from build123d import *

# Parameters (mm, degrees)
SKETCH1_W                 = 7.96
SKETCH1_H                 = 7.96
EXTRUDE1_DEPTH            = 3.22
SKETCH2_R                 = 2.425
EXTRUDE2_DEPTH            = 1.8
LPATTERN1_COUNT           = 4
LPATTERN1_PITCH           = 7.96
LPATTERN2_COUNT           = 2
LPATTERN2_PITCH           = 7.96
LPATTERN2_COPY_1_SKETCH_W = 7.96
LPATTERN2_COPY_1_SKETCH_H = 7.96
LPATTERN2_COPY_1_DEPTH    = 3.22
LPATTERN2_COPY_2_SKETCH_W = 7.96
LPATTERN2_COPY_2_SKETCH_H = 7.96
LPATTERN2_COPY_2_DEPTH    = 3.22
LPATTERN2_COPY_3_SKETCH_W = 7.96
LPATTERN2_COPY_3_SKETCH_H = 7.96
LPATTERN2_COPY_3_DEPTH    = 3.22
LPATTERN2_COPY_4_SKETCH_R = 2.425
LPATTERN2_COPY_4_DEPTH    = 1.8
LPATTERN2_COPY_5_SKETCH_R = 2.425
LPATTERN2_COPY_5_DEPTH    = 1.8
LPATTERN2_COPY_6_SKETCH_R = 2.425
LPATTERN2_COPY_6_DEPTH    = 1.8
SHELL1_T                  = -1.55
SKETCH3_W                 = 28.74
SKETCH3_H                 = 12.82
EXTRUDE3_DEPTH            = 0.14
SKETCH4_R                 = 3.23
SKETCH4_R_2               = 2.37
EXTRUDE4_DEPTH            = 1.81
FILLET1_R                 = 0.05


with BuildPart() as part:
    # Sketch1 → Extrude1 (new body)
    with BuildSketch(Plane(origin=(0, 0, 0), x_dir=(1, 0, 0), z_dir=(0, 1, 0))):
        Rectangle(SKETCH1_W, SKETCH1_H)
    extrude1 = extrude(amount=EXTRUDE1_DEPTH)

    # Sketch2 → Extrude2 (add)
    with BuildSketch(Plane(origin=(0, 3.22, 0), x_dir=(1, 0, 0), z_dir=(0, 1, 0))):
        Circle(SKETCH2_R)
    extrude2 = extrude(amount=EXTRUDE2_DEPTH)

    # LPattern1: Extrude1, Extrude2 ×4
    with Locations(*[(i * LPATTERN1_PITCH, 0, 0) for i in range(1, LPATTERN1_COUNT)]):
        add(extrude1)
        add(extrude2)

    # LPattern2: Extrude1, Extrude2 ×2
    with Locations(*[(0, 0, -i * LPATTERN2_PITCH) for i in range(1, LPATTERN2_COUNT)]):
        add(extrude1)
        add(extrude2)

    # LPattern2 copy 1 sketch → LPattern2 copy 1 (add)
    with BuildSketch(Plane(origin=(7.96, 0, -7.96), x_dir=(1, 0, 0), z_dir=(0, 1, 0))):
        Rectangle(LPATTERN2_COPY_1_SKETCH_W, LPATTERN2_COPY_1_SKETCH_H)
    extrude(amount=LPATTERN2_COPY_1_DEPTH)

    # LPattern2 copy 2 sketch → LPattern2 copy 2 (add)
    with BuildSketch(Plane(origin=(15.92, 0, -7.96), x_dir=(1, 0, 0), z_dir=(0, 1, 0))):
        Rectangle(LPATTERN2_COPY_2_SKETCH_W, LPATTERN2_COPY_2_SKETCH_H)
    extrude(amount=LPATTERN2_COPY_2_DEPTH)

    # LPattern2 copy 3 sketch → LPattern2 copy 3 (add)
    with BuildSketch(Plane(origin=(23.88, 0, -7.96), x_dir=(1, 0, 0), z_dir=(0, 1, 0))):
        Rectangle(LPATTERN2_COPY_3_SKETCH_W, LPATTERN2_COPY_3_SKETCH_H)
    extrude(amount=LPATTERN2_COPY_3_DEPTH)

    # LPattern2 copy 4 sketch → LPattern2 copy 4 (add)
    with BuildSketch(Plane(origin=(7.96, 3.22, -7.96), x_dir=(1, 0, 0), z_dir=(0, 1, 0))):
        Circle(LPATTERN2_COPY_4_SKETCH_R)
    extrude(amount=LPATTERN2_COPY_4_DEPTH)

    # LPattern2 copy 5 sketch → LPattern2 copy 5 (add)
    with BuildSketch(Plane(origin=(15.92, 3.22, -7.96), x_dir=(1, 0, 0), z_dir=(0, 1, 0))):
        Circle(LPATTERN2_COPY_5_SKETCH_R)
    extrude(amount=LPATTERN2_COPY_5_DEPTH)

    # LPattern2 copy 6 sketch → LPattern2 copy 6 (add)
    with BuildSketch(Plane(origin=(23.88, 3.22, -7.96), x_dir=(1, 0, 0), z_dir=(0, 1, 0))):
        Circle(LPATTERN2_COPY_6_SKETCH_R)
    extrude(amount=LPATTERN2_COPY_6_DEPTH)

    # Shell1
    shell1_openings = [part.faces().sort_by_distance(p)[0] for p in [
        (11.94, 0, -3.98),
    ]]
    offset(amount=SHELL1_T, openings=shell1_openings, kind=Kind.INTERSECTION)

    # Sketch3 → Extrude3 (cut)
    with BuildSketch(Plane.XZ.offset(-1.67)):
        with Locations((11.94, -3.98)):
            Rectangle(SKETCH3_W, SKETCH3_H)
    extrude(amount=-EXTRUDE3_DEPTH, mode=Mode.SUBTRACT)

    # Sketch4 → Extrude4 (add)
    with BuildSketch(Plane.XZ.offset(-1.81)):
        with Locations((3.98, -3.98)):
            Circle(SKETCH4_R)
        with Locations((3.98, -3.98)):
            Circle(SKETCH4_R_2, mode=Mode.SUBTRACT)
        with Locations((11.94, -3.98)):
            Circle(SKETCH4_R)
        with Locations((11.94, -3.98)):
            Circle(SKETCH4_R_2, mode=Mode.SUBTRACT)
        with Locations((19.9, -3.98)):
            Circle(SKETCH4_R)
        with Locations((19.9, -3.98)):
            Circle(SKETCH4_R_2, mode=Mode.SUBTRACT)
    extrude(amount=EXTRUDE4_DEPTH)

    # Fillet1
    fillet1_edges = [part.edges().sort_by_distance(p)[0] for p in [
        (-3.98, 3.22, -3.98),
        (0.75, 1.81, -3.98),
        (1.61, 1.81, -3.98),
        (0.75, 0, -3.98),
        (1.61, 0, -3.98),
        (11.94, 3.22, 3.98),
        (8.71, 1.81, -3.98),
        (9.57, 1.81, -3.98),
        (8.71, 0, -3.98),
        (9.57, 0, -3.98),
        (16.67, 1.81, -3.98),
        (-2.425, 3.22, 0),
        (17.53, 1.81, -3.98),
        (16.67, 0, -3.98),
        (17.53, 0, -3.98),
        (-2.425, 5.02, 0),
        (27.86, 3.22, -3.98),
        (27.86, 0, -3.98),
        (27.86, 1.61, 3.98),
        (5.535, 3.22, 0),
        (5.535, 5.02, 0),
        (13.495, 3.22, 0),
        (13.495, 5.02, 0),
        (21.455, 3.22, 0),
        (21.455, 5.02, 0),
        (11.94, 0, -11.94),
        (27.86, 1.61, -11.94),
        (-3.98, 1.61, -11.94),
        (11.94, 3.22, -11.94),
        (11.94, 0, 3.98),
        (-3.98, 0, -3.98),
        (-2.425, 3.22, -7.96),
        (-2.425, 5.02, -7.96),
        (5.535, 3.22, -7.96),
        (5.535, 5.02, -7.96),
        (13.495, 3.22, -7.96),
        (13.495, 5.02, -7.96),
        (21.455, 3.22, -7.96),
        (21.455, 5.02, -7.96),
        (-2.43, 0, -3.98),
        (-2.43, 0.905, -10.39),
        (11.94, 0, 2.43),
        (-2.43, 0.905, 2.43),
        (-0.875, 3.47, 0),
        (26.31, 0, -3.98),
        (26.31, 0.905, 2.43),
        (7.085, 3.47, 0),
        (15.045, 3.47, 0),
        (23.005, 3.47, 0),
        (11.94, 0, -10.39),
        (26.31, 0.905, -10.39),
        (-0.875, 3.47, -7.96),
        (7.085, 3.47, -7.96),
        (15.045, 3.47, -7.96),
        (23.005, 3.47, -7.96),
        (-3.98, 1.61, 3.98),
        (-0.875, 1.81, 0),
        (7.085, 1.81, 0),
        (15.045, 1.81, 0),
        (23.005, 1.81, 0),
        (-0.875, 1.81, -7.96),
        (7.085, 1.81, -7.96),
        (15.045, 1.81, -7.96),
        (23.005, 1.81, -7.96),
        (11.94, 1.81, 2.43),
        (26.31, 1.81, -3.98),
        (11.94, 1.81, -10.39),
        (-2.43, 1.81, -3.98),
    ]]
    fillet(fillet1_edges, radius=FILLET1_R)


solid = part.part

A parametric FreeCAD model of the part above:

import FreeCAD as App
import Part
import Sketcher


def faces_at(feature, points):
    """Names of the faces that lie closest to the given points."""
    faces = feature.Shape.Faces
    near = lambda p: min(range(len(faces)), key=lambda i: faces[i].distToShape(Part.Vertex(*p))[0])
    return sorted({f"Face{near(p) + 1}" for p in points})

doc = App.newDocument("Part")
body = doc.addObject("PartDesign::Body", "Body")

# Sketch on XZ plane
sketch1 = body.newObject("Sketcher::SketchObject", "Sketch")
sketch1.AttachmentSupport = (doc.getObject("XZ_Plane"), [""])
sketch1.MapMode = "FlatFace"
sketch1.addGeometry([
    Part.LineSegment(App.Vector(-4, -4, 0), App.Vector(-4, 4, 0)),
    Part.LineSegment(App.Vector(-4, 4, 0), App.Vector(4, 4, 0)),
    Part.LineSegment(App.Vector(4, 4, 0), App.Vector(4, -4, 0)),
    Part.LineSegment(App.Vector(4, -4, 0), App.Vector(-4, -4, 0)),
], False)
sketch1.addConstraint([
    Sketcher.Constraint("Coincident", 0, 2, 1, 1),
    Sketcher.Constraint("Coincident", 1, 2, 2, 1),
    Sketcher.Constraint("Coincident", 2, 2, 3, 1),
    Sketcher.Constraint("Coincident", 3, 2, 0, 1),
    Sketcher.Constraint("Vertical", 0),
    Sketcher.Constraint("Horizontal", 1),
    Sketcher.Constraint("Vertical", 2),
    Sketcher.Constraint("Horizontal", 3),
    Sketcher.Constraint("Symmetric", 0, 2, 2, 2, -1, 1),
    Sketcher.Constraint("Equal", 3, 0),
    Sketcher.Constraint("DistanceX", 1, 1, 1, 2, 7.96),
])
pad1 = body.newObject("PartDesign::Pad", "Pad")
pad1.Profile = sketch1
pad1.Length = 3.22
pad1.Reversed = True

# Sketch on XZ plane
sketch2 = body.newObject("Sketcher::SketchObject", "Sketch001")
sketch2.AttachmentSupport = (doc.getObject("XZ_Plane"), [""])
sketch2.MapMode = "FlatFace"
sketch2.AttachmentOffset = App.Placement(App.Vector(0, 0, -3.22), App.Rotation())
sketch2.addGeometry(Part.Circle(App.Vector(0, 0, 0), App.Vector(0, 0, 1), 2.4), False)
sketch2.addConstraint([
    Sketcher.Constraint("Coincident", 0, 3, -1, 1),
    Sketcher.Constraint("Diameter", 0, 4.85),
])
pad2 = body.newObject("PartDesign::Pad", "Pad001")
pad2.Profile = sketch2
pad2.Length = 1.8
pad2.Reversed = True
doc.recompute()

linearpattern = body.newObject("PartDesign::LinearPattern", "LinearPattern")
linearpattern.Originals = [pad1, pad2]
linearpattern.Direction = (doc.getObject("X_Axis"), [""])
linearpattern.Mode = "offset"
linearpattern.Offset = 7.96
linearpattern.Occurrences = 4
body.Tip = linearpattern
doc.recompute()

linearpattern2 = body.newObject("PartDesign::LinearPattern", "LinearPattern001")
linearpattern2.Originals = [pad1, pad2]
linearpattern2.Direction = (doc.getObject("Z_Axis"), [""])
linearpattern2.Mode = "offset"
linearpattern2.Offset = 7.96
linearpattern2.Occurrences = 2
linearpattern2.Reversed = True
body.Tip = linearpattern2

# Sketch on XZ plane
sketch3 = body.newObject("Sketcher::SketchObject", "Sketch002")
sketch3.AttachmentSupport = (doc.getObject("XZ_Plane"), [""])
sketch3.MapMode = "FlatFace"
sketch3.addGeometry([
    Part.LineSegment(App.Vector(4, -12, 0), App.Vector(4, -4, 0)),
    Part.LineSegment(App.Vector(4, -4, 0), App.Vector(12, -4, 0)),
    Part.LineSegment(App.Vector(12, -4, 0), App.Vector(12, -12, 0)),
    Part.LineSegment(App.Vector(12, -12, 0), App.Vector(4, -12, 0)),
], False)
sketch3.addConstraint([
    Sketcher.Constraint("Coincident", 0, 2, 1, 1),
    Sketcher.Constraint("Coincident", 1, 2, 2, 1),
    Sketcher.Constraint("Coincident", 2, 2, 3, 1),
    Sketcher.Constraint("Coincident", 3, 2, 0, 1),
    Sketcher.Constraint("Vertical", 0),
    Sketcher.Constraint("Horizontal", 1),
    Sketcher.Constraint("Vertical", 2),
    Sketcher.Constraint("Horizontal", 3),
    Sketcher.Constraint("Equal", 3, 0),
    Sketcher.Constraint("DistanceX", 1, 1, 1, 2, 7.96),
    Sketcher.Constraint("DistanceX", -1, 1, 0, 2, 3.98),
    Sketcher.Constraint("DistanceY", 0, 2, -1, 1, 3.98),
])
pad3 = body.newObject("PartDesign::Pad", "Pad002")
pad3.Profile = sketch3
pad3.Length = 3.22
pad3.Reversed = True

# Sketch on XZ plane
sketch4 = body.newObject("Sketcher::SketchObject", "Sketch003")
sketch4.AttachmentSupport = (doc.getObject("XZ_Plane"), [""])
sketch4.MapMode = "FlatFace"
sketch4.addGeometry([
    Part.LineSegment(App.Vector(12, -12, 0), App.Vector(12, -4, 0)),
    Part.LineSegment(App.Vector(12, -4, 0), App.Vector(20, -4, 0)),
    Part.LineSegment(App.Vector(20, -4, 0), App.Vector(20, -12, 0)),
    Part.LineSegment(App.Vector(20, -12, 0), App.Vector(12, -12, 0)),
], False)
sketch4.addConstraint([
    Sketcher.Constraint("Coincident", 0, 2, 1, 1),
    Sketcher.Constraint("Coincident", 1, 2, 2, 1),
    Sketcher.Constraint("Coincident", 2, 2, 3, 1),
    Sketcher.Constraint("Coincident", 3, 2, 0, 1),
    Sketcher.Constraint("Vertical", 0),
    Sketcher.Constraint("Horizontal", 1),
    Sketcher.Constraint("Vertical", 2),
    Sketcher.Constraint("Horizontal", 3),
    Sketcher.Constraint("Equal", 3, 0),
    Sketcher.Constraint("DistanceX", 1, 1, 1, 2, 7.96),
    Sketcher.Constraint("DistanceX", -1, 1, 1, 2, 19.9),
    Sketcher.Constraint("DistanceY", 0, 2, -1, 1, 3.98),
])
pad4 = body.newObject("PartDesign::Pad", "Pad003")
pad4.Profile = sketch4
pad4.Length = 3.22
pad4.Reversed = True

# Sketch on XZ plane
sketch5 = body.newObject("Sketcher::SketchObject", "Sketch004")
sketch5.AttachmentSupport = (doc.getObject("XZ_Plane"), [""])
sketch5.MapMode = "FlatFace"
sketch5.addGeometry([
    Part.LineSegment(App.Vector(20, -12, 0), App.Vector(20, -4, 0)),
    Part.LineSegment(App.Vector(20, -4, 0), App.Vector(28, -4, 0)),
    Part.LineSegment(App.Vector(28, -4, 0), App.Vector(28, -12, 0)),
    Part.LineSegment(App.Vector(28, -12, 0), App.Vector(20, -12, 0)),
], False)
sketch5.addConstraint([
    Sketcher.Constraint("Coincident", 0, 2, 1, 1),
    Sketcher.Constraint("Coincident", 1, 2, 2, 1),
    Sketcher.Constraint("Coincident", 2, 2, 3, 1),
    Sketcher.Constraint("Coincident", 3, 2, 0, 1),
    Sketcher.Constraint("Vertical", 0),
    Sketcher.Constraint("Horizontal", 1),
    Sketcher.Constraint("Vertical", 2),
    Sketcher.Constraint("Horizontal", 3),
    Sketcher.Constraint("Equal", 3, 0),
    Sketcher.Constraint("DistanceX", 1, 1, 1, 2, 7.96),
    Sketcher.Constraint("DistanceX", -1, 1, 0, 2, 19.9),
    Sketcher.Constraint("DistanceY", 0, 2, -1, 1, 3.98),
])
pad5 = body.newObject("PartDesign::Pad", "Pad004")
pad5.Profile = sketch5
pad5.Length = 3.22
pad5.Reversed = True

# Sketch on XZ plane
sketch6 = body.newObject("Sketcher::SketchObject", "Sketch005")
sketch6.AttachmentSupport = (doc.getObject("XZ_Plane"), [""])
sketch6.MapMode = "FlatFace"
sketch6.AttachmentOffset = App.Placement(App.Vector(0, 0, -3.22), App.Rotation())
sketch6.addGeometry(Part.Circle(App.Vector(8, -8, 0), App.Vector(0, 0, 1), 2.4), False)
sketch6.addConstraint([
    Sketcher.Constraint("Diameter", 0, 4.85),
    Sketcher.Constraint("DistanceX", -1, 1, 0, 3, 7.96),
    Sketcher.Constraint("DistanceY", 0, 3, -1, 1, 7.96),
])
pad6 = body.newObject("PartDesign::Pad", "Pad005")
pad6.Profile = sketch6
pad6.Length = 1.8
pad6.Reversed = True

# Sketch on XZ plane
sketch7 = body.newObject("Sketcher::SketchObject", "Sketch006")
sketch7.AttachmentSupport = (doc.getObject("XZ_Plane"), [""])
sketch7.MapMode = "FlatFace"
sketch7.AttachmentOffset = App.Placement(App.Vector(0, 0, -3.22), App.Rotation())
sketch7.addGeometry(Part.Circle(App.Vector(15.9, -8, 0), App.Vector(0, 0, 1), 2.4), False)
sketch7.addConstraint([
    Sketcher.Constraint("Diameter", 0, 4.85),
    Sketcher.Constraint("DistanceX", -1, 1, 0, 3, 15.92),
    Sketcher.Constraint("DistanceY", 0, 3, -1, 1, 7.96),
])
pad7 = body.newObject("PartDesign::Pad", "Pad006")
pad7.Profile = sketch7
pad7.Length = 1.8
pad7.Reversed = True

# Sketch on XZ plane
sketch8 = body.newObject("Sketcher::SketchObject", "Sketch007")
sketch8.AttachmentSupport = (doc.getObject("XZ_Plane"), [""])
sketch8.MapMode = "FlatFace"
sketch8.AttachmentOffset = App.Placement(App.Vector(0, 0, -3.22), App.Rotation())
sketch8.addGeometry(Part.Circle(App.Vector(23.9, -8, 0), App.Vector(0, 0, 1), 2.4), False)
sketch8.addConstraint([
    Sketcher.Constraint("Diameter", 0, 4.85),
    Sketcher.Constraint("DistanceX", -1, 1, 0, 3, 23.88),
    Sketcher.Constraint("DistanceY", 0, 3, -1, 1, 7.96),
])
pad8 = body.newObject("PartDesign::Pad", "Pad007")
pad8.Profile = sketch8
pad8.Length = 1.8
pad8.Reversed = True
doc.recompute()

thickness = body.newObject("PartDesign::Thickness", "Thickness")
thickness.Base = (pad8, faces_at(pad8, [(11.94, 0, -3.98)]))
thickness.Value = 1.55
thickness.Reversed = True
thickness.Join = "Intersection"

# Sketch on XZ plane
sketch9 = body.newObject("Sketcher::SketchObject", "Sketch008")
sketch9.AttachmentSupport = (doc.getObject("XZ_Plane"), [""])
sketch9.MapMode = "FlatFace"
sketch9.AttachmentOffset = App.Placement(App.Vector(0, 0, -1.67), App.Rotation())
sketch9.addGeometry([
    Part.LineSegment(App.Vector(-2, 2, 0), App.Vector(-2, -10, 0)),
    Part.LineSegment(App.Vector(-2, -10, 0), App.Vector(26, -10, 0)),
    Part.LineSegment(App.Vector(26, -10, 0), App.Vector(26, 2, 0)),
    Part.LineSegment(App.Vector(26, 2, 0), App.Vector(-2, 2, 0)),
], False)
sketch9.addConstraint([
    Sketcher.Constraint("Coincident", 0, 2, 1, 1),
    Sketcher.Constraint("Coincident", 1, 2, 2, 1),
    Sketcher.Constraint("Coincident", 2, 2, 3, 1),
    Sketcher.Constraint("Coincident", 3, 2, 0, 1),
    Sketcher.Constraint("Vertical", 0),
    Sketcher.Constraint("Horizontal", 1),
    Sketcher.Constraint("Vertical", 2),
    Sketcher.Constraint("Horizontal", 3),
    Sketcher.Constraint("DistanceX", 1, 1, 1, 2, 28.74),
    Sketcher.Constraint("DistanceY", 0, 2, 0, 1, 12.82),
    Sketcher.Constraint("DistanceX", 0, 2, -1, 1, 2.43),
    Sketcher.Constraint("DistanceY", 0, 2, -1, 1, 10.39),
])
pocket1 = body.newObject("PartDesign::Pocket", "Pocket")
pocket1.Profile = sketch9
pocket1.Length = 0.14

# Sketch on XZ plane
sketch10 = body.newObject("Sketcher::SketchObject", "Sketch009")
sketch10.AttachmentSupport = (doc.getObject("XZ_Plane"), [""])
sketch10.MapMode = "FlatFace"
sketch10.AttachmentOffset = App.Placement(App.Vector(0, 0, -1.81), App.Rotation())
sketch10.addGeometry([
    Part.Circle(App.Vector(4, -4, 0), App.Vector(0, 0, 1), 3.2),  # 0
    Part.Circle(App.Vector(4, -4, 0), App.Vector(0, 0, 1), 2.4),  # 1
    Part.Circle(App.Vector(11.9, -4, 0), App.Vector(0, 0, 1), 3.2),  # 2
    Part.Circle(App.Vector(11.9, -4, 0), App.Vector(0, 0, 1), 2.4),  # 3
    Part.Circle(App.Vector(19.9, -4, 0), App.Vector(0, 0, 1), 3.2),  # 4
    Part.Circle(App.Vector(19.9, -4, 0), App.Vector(0, 0, 1), 2.4),  # 5
], False)
sketch10.addConstraint([
    Sketcher.Constraint("Coincident", 1, 3, 0, 3),
    Sketcher.Constraint("Coincident", 3, 3, 2, 3),
    Sketcher.Constraint("Coincident", 5, 3, 4, 3),
    Sketcher.Constraint("Equal", 0, 2),
    Sketcher.Constraint("Equal", 1, 3),
    Sketcher.Constraint("Equal", 2, 4),
    Sketcher.Constraint("Equal", 3, 5),
    Sketcher.Constraint("Horizontal", 1, 3, 2, 3),
    Sketcher.Constraint("Horizontal", 3, 3, 4, 3),
    Sketcher.Constraint("Diameter", 0, 6.46),
    Sketcher.Constraint("Diameter", 1, 4.74),
    Sketcher.Constraint("DistanceX", -1, 1, 4, 3, 19.9),
    Sketcher.Constraint("DistanceX", -1, 1, 0, 3, 3.98),
    Sketcher.Constraint("DistanceY", 0, 3, -1, 1, 3.98),
    Sketcher.Constraint("DistanceX", -1, 1, 2, 3, 11.94),
])
pad9 = body.newObject("PartDesign::Pad", "Pad008")
pad9.Profile = sketch10
pad9.Length = 1.81
doc.recompute()

fillet = body.newObject("PartDesign::Fillet", "Fillet")
fillet.Base = (pad9, ["Edge1"])
fillet.UseAllEdges = True
fillet.Radius = 0.05

doc.recompute()
